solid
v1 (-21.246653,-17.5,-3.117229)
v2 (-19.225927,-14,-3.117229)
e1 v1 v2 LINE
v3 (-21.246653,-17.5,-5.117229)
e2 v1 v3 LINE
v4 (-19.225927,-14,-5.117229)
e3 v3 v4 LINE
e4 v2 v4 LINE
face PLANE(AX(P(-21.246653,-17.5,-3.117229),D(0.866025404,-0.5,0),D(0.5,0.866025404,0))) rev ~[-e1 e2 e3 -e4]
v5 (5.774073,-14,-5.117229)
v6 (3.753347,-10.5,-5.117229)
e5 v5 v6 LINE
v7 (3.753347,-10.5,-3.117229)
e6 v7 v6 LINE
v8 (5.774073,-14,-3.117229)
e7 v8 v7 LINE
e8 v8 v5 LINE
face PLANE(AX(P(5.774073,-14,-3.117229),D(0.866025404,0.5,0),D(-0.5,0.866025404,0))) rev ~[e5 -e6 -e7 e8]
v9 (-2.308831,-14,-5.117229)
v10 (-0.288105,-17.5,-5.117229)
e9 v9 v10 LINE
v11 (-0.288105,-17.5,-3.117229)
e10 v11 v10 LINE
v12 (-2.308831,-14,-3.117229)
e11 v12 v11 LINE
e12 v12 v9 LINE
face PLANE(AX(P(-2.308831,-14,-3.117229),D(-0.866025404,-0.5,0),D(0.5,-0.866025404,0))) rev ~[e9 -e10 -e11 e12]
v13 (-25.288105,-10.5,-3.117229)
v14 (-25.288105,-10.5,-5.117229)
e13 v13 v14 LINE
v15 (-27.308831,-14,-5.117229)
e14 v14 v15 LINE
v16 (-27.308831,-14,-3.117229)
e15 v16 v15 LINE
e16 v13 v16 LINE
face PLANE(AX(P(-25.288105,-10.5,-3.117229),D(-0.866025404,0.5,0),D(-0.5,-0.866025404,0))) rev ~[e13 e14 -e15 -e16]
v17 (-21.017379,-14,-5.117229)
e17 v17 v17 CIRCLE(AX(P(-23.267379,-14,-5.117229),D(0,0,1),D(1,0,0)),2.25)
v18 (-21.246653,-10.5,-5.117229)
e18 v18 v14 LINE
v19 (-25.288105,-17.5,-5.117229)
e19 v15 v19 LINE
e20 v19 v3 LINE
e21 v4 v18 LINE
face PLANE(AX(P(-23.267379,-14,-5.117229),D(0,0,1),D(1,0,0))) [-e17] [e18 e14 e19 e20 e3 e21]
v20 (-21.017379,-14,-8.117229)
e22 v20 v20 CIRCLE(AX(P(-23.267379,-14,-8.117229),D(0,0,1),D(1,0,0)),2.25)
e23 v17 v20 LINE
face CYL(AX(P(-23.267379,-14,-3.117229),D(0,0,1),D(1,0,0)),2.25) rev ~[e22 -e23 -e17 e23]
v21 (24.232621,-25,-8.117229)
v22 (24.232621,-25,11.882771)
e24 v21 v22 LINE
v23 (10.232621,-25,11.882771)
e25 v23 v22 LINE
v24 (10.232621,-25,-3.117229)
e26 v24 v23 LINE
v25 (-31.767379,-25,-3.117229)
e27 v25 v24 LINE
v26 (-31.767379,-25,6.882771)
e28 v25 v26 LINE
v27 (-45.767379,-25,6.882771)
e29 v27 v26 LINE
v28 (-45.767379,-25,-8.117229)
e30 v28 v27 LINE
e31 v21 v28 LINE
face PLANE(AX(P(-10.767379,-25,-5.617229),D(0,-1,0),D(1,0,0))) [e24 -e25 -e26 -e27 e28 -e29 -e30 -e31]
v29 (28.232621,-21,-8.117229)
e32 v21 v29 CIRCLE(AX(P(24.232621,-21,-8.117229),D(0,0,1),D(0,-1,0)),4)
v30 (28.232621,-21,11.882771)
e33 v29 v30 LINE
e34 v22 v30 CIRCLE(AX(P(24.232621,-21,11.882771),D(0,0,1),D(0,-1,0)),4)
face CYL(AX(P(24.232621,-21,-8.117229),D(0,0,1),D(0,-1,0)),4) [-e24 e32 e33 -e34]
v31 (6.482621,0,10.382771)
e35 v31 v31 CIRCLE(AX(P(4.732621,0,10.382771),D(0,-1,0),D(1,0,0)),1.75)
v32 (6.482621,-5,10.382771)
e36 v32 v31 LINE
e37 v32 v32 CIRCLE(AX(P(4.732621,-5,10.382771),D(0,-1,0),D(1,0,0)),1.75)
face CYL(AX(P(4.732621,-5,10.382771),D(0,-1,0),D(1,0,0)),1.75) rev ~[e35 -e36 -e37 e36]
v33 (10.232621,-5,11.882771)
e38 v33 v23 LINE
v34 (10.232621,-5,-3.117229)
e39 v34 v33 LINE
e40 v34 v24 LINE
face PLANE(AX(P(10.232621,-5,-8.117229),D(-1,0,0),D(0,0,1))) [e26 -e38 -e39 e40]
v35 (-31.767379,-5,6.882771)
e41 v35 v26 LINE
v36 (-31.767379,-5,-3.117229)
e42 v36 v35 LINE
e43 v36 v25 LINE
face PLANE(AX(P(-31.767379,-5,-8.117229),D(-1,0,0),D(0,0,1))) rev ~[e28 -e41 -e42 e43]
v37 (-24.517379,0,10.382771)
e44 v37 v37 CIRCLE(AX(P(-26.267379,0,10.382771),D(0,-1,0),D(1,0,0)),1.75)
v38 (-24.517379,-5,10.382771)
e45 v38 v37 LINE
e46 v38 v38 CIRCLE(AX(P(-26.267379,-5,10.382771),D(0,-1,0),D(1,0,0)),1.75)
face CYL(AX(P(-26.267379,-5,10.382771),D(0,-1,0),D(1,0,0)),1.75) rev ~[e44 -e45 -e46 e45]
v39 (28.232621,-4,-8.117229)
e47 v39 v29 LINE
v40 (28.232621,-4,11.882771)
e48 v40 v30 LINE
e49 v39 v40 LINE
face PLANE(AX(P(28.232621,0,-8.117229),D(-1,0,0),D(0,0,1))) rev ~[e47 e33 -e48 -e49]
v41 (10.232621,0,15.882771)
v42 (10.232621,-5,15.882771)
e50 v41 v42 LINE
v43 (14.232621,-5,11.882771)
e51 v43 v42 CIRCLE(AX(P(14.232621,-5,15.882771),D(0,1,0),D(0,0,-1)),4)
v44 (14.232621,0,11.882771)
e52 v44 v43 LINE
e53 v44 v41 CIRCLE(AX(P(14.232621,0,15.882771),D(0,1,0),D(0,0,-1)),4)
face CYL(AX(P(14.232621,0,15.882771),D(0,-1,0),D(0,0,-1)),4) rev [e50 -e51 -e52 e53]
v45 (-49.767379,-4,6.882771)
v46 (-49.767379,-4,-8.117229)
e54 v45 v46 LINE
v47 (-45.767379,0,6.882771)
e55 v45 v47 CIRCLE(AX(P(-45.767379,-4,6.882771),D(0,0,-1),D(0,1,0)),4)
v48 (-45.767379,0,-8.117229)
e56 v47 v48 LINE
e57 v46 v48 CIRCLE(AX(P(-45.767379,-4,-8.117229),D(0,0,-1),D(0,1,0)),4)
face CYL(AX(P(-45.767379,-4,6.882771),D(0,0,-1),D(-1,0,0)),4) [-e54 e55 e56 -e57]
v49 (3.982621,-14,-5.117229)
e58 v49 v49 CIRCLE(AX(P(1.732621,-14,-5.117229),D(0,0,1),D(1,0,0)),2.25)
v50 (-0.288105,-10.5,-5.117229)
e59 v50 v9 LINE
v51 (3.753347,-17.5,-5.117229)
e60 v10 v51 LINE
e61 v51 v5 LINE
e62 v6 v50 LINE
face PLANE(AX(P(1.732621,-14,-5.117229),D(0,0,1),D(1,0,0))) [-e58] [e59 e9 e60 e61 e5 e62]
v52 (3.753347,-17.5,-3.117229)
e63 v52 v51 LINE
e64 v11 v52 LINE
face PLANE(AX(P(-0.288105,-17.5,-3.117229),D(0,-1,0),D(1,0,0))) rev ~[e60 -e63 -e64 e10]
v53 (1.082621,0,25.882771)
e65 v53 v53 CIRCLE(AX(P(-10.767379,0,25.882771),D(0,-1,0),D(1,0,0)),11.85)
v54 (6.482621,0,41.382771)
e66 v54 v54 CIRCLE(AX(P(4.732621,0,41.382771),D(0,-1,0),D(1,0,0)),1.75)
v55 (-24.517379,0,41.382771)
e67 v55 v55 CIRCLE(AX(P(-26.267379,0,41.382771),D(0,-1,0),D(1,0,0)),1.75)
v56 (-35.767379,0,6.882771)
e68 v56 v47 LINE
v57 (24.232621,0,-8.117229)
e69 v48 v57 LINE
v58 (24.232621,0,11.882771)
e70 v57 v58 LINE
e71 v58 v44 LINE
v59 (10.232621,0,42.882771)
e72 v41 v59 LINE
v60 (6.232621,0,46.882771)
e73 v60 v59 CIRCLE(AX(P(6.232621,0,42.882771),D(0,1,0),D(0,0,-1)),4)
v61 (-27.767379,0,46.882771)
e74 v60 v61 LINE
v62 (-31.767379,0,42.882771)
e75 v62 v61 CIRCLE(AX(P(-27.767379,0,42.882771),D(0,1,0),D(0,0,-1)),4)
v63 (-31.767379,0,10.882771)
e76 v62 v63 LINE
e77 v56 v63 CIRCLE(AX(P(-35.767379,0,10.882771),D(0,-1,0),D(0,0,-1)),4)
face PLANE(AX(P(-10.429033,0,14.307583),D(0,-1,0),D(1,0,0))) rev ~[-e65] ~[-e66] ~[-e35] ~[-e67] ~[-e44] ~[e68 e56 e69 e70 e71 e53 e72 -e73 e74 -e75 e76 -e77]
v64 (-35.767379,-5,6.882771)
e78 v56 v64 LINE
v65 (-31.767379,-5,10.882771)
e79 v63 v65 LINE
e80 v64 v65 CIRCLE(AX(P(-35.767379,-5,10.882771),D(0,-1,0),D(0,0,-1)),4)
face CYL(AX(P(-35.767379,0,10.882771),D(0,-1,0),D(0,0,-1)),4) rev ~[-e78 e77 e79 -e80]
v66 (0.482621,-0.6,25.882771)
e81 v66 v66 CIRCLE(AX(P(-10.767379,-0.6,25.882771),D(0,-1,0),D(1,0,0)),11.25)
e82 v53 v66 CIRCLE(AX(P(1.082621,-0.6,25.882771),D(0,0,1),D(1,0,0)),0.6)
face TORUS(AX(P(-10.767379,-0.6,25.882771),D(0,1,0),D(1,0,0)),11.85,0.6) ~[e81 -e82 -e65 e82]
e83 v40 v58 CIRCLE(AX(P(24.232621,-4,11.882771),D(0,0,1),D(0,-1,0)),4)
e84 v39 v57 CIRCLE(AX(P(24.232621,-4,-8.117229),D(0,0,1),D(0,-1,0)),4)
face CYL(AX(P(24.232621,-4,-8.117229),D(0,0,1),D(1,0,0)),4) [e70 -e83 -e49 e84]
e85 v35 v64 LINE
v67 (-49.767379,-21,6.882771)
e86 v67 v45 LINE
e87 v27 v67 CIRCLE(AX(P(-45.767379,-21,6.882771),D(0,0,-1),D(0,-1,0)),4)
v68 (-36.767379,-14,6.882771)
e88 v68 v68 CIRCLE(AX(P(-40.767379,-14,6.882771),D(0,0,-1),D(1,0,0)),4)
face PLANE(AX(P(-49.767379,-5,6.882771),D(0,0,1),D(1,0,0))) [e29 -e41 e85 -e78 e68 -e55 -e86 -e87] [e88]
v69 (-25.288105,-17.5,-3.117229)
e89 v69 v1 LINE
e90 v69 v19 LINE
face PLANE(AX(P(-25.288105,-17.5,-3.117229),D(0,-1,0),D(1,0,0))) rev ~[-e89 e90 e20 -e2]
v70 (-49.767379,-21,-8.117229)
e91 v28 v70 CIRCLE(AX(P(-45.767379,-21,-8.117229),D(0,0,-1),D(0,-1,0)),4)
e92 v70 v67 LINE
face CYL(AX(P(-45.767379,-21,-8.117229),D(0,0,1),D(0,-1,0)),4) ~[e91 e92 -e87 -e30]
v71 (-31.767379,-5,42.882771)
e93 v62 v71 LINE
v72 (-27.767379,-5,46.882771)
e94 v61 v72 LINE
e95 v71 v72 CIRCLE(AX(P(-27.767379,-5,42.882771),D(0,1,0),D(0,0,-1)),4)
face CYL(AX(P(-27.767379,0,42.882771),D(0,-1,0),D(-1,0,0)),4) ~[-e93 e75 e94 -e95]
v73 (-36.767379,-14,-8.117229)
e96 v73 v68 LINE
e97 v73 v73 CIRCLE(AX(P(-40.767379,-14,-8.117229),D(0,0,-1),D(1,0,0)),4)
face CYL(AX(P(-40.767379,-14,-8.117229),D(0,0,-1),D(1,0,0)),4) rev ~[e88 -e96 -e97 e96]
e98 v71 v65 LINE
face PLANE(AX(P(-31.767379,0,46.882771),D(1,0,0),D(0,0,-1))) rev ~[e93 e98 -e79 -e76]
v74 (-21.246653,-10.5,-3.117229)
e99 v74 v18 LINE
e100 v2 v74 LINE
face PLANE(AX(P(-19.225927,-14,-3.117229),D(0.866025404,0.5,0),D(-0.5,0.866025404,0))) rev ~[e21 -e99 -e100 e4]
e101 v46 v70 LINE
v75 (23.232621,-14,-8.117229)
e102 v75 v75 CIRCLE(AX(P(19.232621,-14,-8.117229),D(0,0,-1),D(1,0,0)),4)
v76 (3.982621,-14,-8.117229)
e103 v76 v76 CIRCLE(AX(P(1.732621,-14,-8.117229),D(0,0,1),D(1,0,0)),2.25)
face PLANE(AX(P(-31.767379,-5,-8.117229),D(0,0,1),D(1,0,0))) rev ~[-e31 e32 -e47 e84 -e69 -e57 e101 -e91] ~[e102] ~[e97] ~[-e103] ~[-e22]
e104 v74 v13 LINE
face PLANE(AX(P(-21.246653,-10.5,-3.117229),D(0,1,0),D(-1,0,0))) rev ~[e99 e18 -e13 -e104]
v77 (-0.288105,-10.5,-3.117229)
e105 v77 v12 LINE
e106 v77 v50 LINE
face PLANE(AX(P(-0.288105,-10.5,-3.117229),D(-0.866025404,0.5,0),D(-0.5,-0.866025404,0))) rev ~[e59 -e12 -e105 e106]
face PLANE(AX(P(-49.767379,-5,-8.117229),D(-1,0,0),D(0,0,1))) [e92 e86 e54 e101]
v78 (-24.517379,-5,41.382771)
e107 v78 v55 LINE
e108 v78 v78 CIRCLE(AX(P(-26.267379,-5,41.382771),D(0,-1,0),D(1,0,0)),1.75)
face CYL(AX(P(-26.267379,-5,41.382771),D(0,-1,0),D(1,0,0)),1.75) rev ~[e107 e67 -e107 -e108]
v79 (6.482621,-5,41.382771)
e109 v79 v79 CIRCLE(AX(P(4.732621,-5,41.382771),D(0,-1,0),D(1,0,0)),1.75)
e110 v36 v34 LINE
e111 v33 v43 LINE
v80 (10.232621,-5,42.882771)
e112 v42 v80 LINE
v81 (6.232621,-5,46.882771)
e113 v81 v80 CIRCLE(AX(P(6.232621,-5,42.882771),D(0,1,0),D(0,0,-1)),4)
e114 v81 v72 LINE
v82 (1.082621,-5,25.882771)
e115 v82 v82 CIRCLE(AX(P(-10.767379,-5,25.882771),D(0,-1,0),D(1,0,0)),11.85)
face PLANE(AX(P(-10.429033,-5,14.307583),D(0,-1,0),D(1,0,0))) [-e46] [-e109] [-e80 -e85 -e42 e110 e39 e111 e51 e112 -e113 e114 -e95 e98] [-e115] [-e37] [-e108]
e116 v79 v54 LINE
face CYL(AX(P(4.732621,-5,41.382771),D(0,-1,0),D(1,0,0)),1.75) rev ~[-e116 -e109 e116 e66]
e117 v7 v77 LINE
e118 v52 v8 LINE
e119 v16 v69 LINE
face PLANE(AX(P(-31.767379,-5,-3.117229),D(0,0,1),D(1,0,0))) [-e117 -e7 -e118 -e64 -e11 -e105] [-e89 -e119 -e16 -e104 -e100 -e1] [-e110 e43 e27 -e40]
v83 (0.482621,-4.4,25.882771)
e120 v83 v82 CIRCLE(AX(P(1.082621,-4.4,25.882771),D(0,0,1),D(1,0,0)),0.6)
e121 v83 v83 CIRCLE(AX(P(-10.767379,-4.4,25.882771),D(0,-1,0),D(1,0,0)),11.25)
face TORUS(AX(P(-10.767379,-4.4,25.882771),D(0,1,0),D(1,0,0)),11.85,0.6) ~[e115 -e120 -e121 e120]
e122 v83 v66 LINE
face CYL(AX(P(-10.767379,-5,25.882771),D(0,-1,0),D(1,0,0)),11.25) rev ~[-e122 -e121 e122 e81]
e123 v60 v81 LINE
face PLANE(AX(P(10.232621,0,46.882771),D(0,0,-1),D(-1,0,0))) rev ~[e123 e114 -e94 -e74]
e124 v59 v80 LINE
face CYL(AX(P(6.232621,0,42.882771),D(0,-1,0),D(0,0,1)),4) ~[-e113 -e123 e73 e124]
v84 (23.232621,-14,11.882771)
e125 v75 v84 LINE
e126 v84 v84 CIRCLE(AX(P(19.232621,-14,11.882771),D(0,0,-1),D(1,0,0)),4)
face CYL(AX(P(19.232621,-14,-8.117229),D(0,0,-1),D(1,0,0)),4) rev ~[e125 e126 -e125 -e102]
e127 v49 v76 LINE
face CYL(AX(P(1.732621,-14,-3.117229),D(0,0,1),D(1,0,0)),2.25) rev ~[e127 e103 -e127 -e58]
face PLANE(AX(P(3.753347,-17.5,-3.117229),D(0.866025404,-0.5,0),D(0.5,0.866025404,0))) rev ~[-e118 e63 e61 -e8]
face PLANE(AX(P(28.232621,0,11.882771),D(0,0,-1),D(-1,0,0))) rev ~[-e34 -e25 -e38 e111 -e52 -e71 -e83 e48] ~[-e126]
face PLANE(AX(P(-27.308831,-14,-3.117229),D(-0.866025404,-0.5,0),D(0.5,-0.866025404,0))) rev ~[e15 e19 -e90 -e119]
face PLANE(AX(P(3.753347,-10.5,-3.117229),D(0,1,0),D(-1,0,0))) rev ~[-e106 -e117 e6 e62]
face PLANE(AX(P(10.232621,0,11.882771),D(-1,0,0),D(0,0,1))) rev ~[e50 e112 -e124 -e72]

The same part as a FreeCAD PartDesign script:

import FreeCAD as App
import Part
import Sketcher

V = App.Vector
Q = App.Units.Quantity


def edges_at(feature, points):
    """Names of the edges that pass closest to the given points."""
    edges = feature.Shape.Edges
    near = lambda p: min(range(len(edges)), key=lambda i: edges[i].distToShape(Part.Vertex(*p))[0])
    return sorted({f"Edge{near(p) + 1}" for p in points})


def add_polygon(sketch, points):
    """Adds a closed chain of lines whose ends are joined by coincident constraints."""
    first, n = sketch.GeometryCount, len(points)
    for a, b in zip(points, points[1:] + points[:1]):
        sketch.addGeometry(Part.LineSegment(App.Vector(*a, 0), App.Vector(*b, 0)), False)
    for i in range(n):
        sketch.addConstraint(Sketcher.Constraint("Coincident", first + i, 2, first + (i + 1) % n, 1))

doc = App.newDocument("Part")
body = doc.addObject("PartDesign::Body", "Body")

# Sketch on XZ plane
sketch1 = body.newObject("Sketcher::SketchObject", "Sketch")
sketch1.AttachmentSupport = (doc.getObject("XZ_Plane"), [""])
sketch1.MapMode = "FlatFace"
add_polygon(sketch1, [(-49.767379, 6.882771), (-49.767379, -8.117229), (28.232621, -8.117229), (28.232621, 11.882771), (10.232621, 11.882771), (10.232621, 46.882771), (-31.767379, 46.882771), (-31.767379, 6.882771)])  # lines 0-7
sketch1.addConstraint([
    Sketcher.Constraint("Vertical", 0),
    Sketcher.Constraint("Horizontal", 1),
    Sketcher.Constraint("Vertical", 2),
    Sketcher.Constraint("Horizontal", 3),
    Sketcher.Constraint("Vertical", 4),
    Sketcher.Constraint("Horizontal", 5),
    Sketcher.Constraint("Vertical", 6),
    Sketcher.Constraint("Horizontal", 7),
    Sketcher.Constraint("Equal", 3, 7),
    Sketcher.Constraint("DistanceX", 1, 1, 1, 2, Q("78 mm")),
    Sketcher.Constraint("DistanceX", 3, 2, 3, 1, Q("18 mm")),
    Sketcher.Constraint("DistanceY", 0, 2, 0, 1, Q("15 mm")),
    Sketcher.Constraint("DistanceY", 2, 1, 2, 2, Q("20 mm")),
    Sketcher.Constraint("DistanceY", 4, 1, 4, 2, Q("35 mm")),
    Sketcher.Constraint("DistanceX", 0, 2, -1, 1, Q("49.767379 mm")),
    Sketcher.Constraint("DistanceY", 0, 2, -1, 1, Q("8.117229 mm")),
])
pad1 = body.newObject("PartDesign::Pad", "Pad")
pad1.Profile = sketch1
pad1.Length = 5

# Sketch on XZ plane
sketch2 = body.newObject("Sketcher::SketchObject", "Sketch001")
sketch2.AttachmentSupport = (doc.getObject("XZ_Plane"), [""])
sketch2.MapMode = "FlatFace"
sketch2.AttachmentOffset = App.Placement(V(0, 0, 5), App.Rotation())
add_polygon(sketch2, [(-49.767379, 6.882771), (-49.767379, -8.117229), (-31.767379, -8.117229), (-31.767379, 6.882771)])  # lines 0-3
add_polygon(sketch2, [(10.232621, 11.882771), (10.232621, -8.117229), (28.232621, -8.117229), (28.232621, 11.882771)])  # lines 4-7
sketch2.addConstraint([
    Sketcher.Constraint("Vertical", 0),
    Sketcher.Constraint("Horizontal", 1),
    Sketcher.Constraint("Vertical", 2),
    Sketcher.Constraint("Horizontal", 3),
    Sketcher.Constraint("Vertical", 4),
    Sketcher.Constraint("Horizontal", 5),
    Sketcher.Constraint("Vertical", 6),
    Sketcher.Constraint("Horizontal", 7),
    Sketcher.Constraint("Horizontal", 1, 2, 4, 2),
    Sketcher.Constraint("Equal", 3, 5),
    Sketcher.Constraint("DistanceX", 1, 1, 1, 2, Q("18 mm")),
    Sketcher.Constraint("DistanceY", 0, 2, 0, 1, Q("15 mm")),
    Sketcher.Constraint("DistanceY", 4, 2, 4, 1, Q("20 mm")),
    Sketcher.Constraint("DistanceX", 1, 2, 4, 2, Q("42 mm")),
    Sketcher.Constraint("DistanceX", 0, 2, -1, 1, Q("49.767379 mm")),
    Sketcher.Constraint("DistanceY", 0, 2, -1, 1, Q("8.117229 mm")),
])
pad2 = body.newObject("PartDesign::Pad", "Pad001")
pad2.Profile = sketch2
pad2.Length = 20

# Sketch on XY plane
sketch3 = body.newObject("Sketcher::SketchObject", "Sketch002")
sketch3.AttachmentSupport = (doc.getObject("XY_Plane"), [""])
sketch3.MapMode = "FlatFace"
sketch3.AttachmentOffset = App.Placement(V(0, 0, -8.117229), App.Rotation())
sketch3.addGeometry([
    Part.Circle(V(-40.767379, -14, 0), V(0, 0, 1), 4),
    Part.Circle(V(19.232621, -14, 0), V(0, 0, 1), 4),
], False)
sketch3.addConstraint([
    Sketcher.Constraint("Equal", 0, 1),
    Sketcher.Constraint("Horizontal", 0, 3, 1, 3),
    Sketcher.Constraint("Diameter", 0, Q("8 mm")),
    Sketcher.Constraint("DistanceY", 0, 3, -1, 1, Q("14 mm")),
    Sketcher.Constraint("DistanceX", 0, 3, 1, 3, Q("60 mm")),
    Sketcher.Constraint("DistanceX", 0, 3, -1, 1, Q("40.767379 mm")),
])
pocket1 = body.newObject("PartDesign::Pocket", "Pocket")
pocket1.Profile = sketch3
pocket1.Length = 25
pocket1.Reversed = True

# Sketch on XZ plane
sketch4 = body.newObject("Sketcher::SketchObject", "Sketch003")
sketch4.AttachmentSupport = (doc.getObject("XZ_Plane"), [""])
sketch4.MapMode = "FlatFace"
sketch4.AttachmentOffset = App.Placement(V(0, 0, 5), App.Rotation())
sketch4.addGeometry([
    Part.Circle(V(-26.267379, 41.382771, 0), V(0, 0, 1), 1.75),  # 0
    Part.Circle(V(-26.267379, 10.382771, 0), V(0, 0, 1), 1.75),  # 1
    Part.Circle(V(-10.767379, 25.882771, 0), V(0, 0, 1), 11.25),  # 2
    Part.Circle(V(4.732621, 41.382771, 0), V(0, 0, 1), 1.75),  # 3
    Part.Circle(V(4.732621, 10.382771, 0), V(0, 0, 1), 1.75),  # 4
], False)
sketch4.addConstraint([
    Sketcher.Constraint("Equal", 0, 1),
    Sketcher.Constraint("Equal", 1, 3),
    Sketcher.Constraint("Equal", 3, 4),
    Sketcher.Constraint("Horizontal", 0, 3, 3, 3),
    Sketcher.Constraint("Horizontal", 1, 3, 4, 3),
    Sketcher.Constraint("Vertical", 0, 3, 1, 3),
    Sketcher.Constraint("Vertical", 3, 3, 4, 3),
    Sketcher.Constraint("Diameter", 0, Q("3.5 mm")),
    Sketcher.Constraint("Diameter", 2, Q("22.5 mm")),
    Sketcher.Constraint("DistanceY", 1, 3, 0, 3, Q("31 mm")),
    Sketcher.Constraint("DistanceX", 0, 3, 3, 3, Q("31 mm")),
    Sketcher.Constraint("DistanceX", 0, 3, 2, 3, Q("15.5 mm")),
    Sketcher.Constraint("DistanceY", 2, 3, 0, 3, Q("15.5 mm")),
    Sketcher.Constraint("DistanceX", 0, 3, -1, 1, Q("26.267379 mm")),
    Sketcher.Constraint("DistanceY", -1, 1, 0, 3, Q("41.382771 mm")),
])
pocket2 = body.newObject("PartDesign::Pocket", "Pocket001")
pocket2.Profile = sketch4
pocket2.Length = 25

# Sketch on XZ plane
sketch5 = body.newObject("Sketcher::SketchObject", "Sketch004")
sketch5.AttachmentSupport = (doc.getObject("XZ_Plane"), [""])
sketch5.MapMode = "FlatFace"
sketch5.AttachmentOffset = App.Placement(V(0, 0, 5), App.Rotation())
add_polygon(sketch5, [(-31.767379, -3.117229), (-31.767379, -8.117229), (10.232621, -8.117229), (10.232621, -3.117229)])  # lines 0-3
sketch5.addConstraint([
    Sketcher.Constraint("Vertical", 0),
    Sketcher.Constraint("Horizontal", 1),
    Sketcher.Constraint("Vertical", 2),
    Sketcher.Constraint("Horizontal", 3),
    Sketcher.Constraint("DistanceX", 1, 1, 1, 2, Q("42 mm")),
    Sketcher.Constraint("DistanceY", 0, 2, 0, 1, Q("5 mm")),
    Sketcher.Constraint("DistanceX", 0, 2, -1, 1, Q("31.767379 mm")),
    Sketcher.Constraint("DistanceY", 0, 2, -1, 1, Q("8.117229 mm")),
])
pad3 = body.newObject("PartDesign::Pad", "Pad002")
pad3.Profile = sketch5
pad3.Length = 20

# Sketch on XY plane
sketch6 = body.newObject("Sketcher::SketchObject", "Sketch005")
sketch6.AttachmentSupport = (doc.getObject("XY_Plane"), [""])
sketch6.MapMode = "FlatFace"
sketch6.AttachmentOffset = App.Placement(V(0, 0, -3.117229), App.Rotation())
sketch6.addGeometry([
    Part.Circle(V(-23.267379, -14, 0), V(0, 0, 1), 2.25),
    Part.Circle(V(1.732621, -14, 0), V(0, 0, 1), 2.25),
], False)
sketch6.addConstraint([
    Sketcher.Constraint("Equal", 0, 1),
    Sketcher.Constraint("Horizontal", 0, 3, 1, 3),
    Sketcher.Constraint("Diameter", 0, Q("4.5 mm")),
    Sketcher.Constraint("DistanceY", 0, 3, -1, 1, Q("14 mm")),
    Sketcher.Constraint("DistanceX", 0, 3, 1, 3, Q("25 mm")),
    Sketcher.Constraint("DistanceX", 0, 3, -1, 1, Q("23.267379 mm")),
])
pocket3 = body.newObject("PartDesign::Pocket", "Pocket002")
pocket3.Profile = sketch6
pocket3.Length = 25

# Sketch on XY plane
sketch7 = body.newObject("Sketcher::SketchObject", "Sketch006")
sketch7.AttachmentSupport = (doc.getObject("XY_Plane"), [""])
sketch7.MapMode = "FlatFace"
sketch7.AttachmentOffset = App.Placement(V(0, 0, -3.117229), App.Rotation())
add_polygon(sketch7, [(-21.246653, -17.5), (-19.225927, -14), (-21.246653, -10.5), (-25.288105, -10.5), (-27.308831, -14), (-25.288105, -17.5)])  # lines 0-5
sketch7.addGeometry(Part.Circle(V(-23.267379, -14, 0), V(0, 0, 1), 2.25), False)  # 6
add_polygon(sketch7, [(3.753347, -17.5), (5.774073, -14), (3.753347, -10.5), (-0.288105, -10.5), (-2.308831, -14), (-0.288105, -17.5)])  # lines 7-12
sketch7.addGeometry(Part.Circle(V(1.732621, -14, 0), V(0, 0, 1), 2.25), False)  # 13
sketch7.addConstraint([
    Sketcher.Constraint("Horizontal", 2),
    Sketcher.Constraint("Horizontal", 5),
    Sketcher.Constraint("Horizontal", 9),
    Sketcher.Constraint("Horizontal", 12),
    Sketcher.Constraint("Equal", 6, 13),
    Sketcher.Constraint("Parallel", 0, 3),
    Sketcher.Constraint("Parallel", 1, 4),
    Sketcher.Constraint("Parallel", 3, 7),
    Sketcher.Constraint("Parallel", 4, 8),
    Sketcher.Constraint("Parallel", 7, 10),
    Sketcher.Constraint("Parallel", 8, 11),
    Sketcher.Constraint("Horizontal", 6, 3, 13, 3),
    Sketcher.Constraint("Horizontal", 13, 3, 0, 2),
    Sketcher.Constraint("Horizontal", 0, 2, 3, 2),
    Sketcher.Constraint("Horizontal", 3, 2, 7, 2),
    Sketcher.Constraint("Horizontal", 2, 2, 8, 2),
    Sketcher.Constraint("Horizontal", 7, 2, 10, 2),
    Sketcher.Constraint("Horizontal", 5, 2, 11, 2),
    Sketcher.Constraint("Vertical", 2, 2, 4, 2),
    Sketcher.Constraint("Vertical", 1, 2, 5, 2),
    Sketcher.Constraint("Equal", 5, 9),
    Sketcher.Constraint("Diameter", 6, Q("4.5 mm")),
    Sketcher.Constraint("Angle", 0, Q("60 deg")),
    Sketcher.Constraint("DistanceY", 6, 3, -1, 1, Q("14 mm")),
    Sketcher.Constraint("DistanceX", 6, 3, 13, 3, Q("25 mm")),
    Sketcher.Constraint("DistanceY", 4, 2, 2, 2, Q("7 mm")),
    Sketcher.Constraint("DistanceX", 0, 2, 7, 2, Q("25 mm")),
    Sketcher.Constraint("DistanceX", 2, 2, 2, 1, Q("4.041452 mm")),
    Sketcher.Constraint("DistanceX", 6, 3, -1, 1, Q("23.267379 mm")),
    Sketcher.Constraint("DistanceX", 3, 2, -1, 1, Q("27.308831 mm")),
])
pocket4 = body.newObject("PartDesign::Pocket", "Pocket003")
pocket4.Profile = sketch7
pocket4.Length = 2
doc.recompute()

fillet = body.newObject("PartDesign::Fillet", "Fillet")
fillet.Base = (pocket4, edges_at(pocket4, [
    (-49.767, -25, -0.617),
    (28.233, -25, 1.883),
    (28.233, 0, 1.883),
    (-49.767, 0, -0.617),
    (-31.767, -2.5, 46.883),
    (10.233, -2.5, 46.883),
    (-31.767, -2.5, 6.883),
    (10.233, -2.5, 11.883),
]))
fillet.Radius = 4
doc.recompute()

fillet2 = body.newObject("PartDesign::Fillet", "Fillet001")
fillet2.Base = (fillet, edges_at(fillet, [(-22.017, 0, 25.883), (-22.017, -5, 25.883)]))
fillet2.Radius = 0.6

doc.recompute()
